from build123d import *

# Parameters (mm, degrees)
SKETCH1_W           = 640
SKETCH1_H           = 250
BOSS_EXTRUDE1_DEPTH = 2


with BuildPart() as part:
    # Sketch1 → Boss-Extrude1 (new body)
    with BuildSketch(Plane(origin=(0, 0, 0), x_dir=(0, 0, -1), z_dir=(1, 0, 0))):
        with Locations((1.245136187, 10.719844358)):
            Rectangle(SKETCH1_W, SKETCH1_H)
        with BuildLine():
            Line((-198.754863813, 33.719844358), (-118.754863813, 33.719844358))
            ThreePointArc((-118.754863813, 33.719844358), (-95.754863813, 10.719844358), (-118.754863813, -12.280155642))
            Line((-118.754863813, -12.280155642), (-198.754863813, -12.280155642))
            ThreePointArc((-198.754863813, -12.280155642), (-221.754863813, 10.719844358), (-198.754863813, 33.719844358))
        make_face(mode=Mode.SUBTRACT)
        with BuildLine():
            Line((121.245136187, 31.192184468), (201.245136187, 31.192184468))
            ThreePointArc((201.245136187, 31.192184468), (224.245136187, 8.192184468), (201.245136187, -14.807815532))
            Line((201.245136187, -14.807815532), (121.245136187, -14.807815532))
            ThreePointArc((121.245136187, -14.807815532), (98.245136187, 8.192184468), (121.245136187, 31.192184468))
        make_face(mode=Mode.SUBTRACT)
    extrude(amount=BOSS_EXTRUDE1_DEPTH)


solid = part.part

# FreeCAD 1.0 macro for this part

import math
import FreeCAD as App
import Part
import Sketcher
from FreeCAD import Vector


def add_polygon(sketch, points):
    """Adds a closed chain of lines whose ends are joined by coincident constraints."""
    first, n = sketch.GeometryCount, len(points)
    for a, b in zip(points, points[1:] + points[:1]):
        sketch.addGeometry(Part.LineSegment(App.Vector(*a, 0), App.Vector(*b, 0)), False)
    for i in range(n):
        sketch.addConstraint(Sketcher.Constraint("Coincident", first + i, 2, first + (i + 1) % n, 1))

doc = App.newDocument("Part")
body = doc.addObject("PartDesign::Body", "Body")

# Sketch on YZ plane
sketch1 = body.newObject("Sketcher::SketchObject", "Sketch")
sketch1.AttachmentSupport = (doc.getObject("YZ_Plane"), [""])
sketch1.MapMode = "FlatFace"
add_polygon(sketch1, [(135.719844, 318.754864), (-114.280156, 318.754864), (-114.280156, -321.245136), (135.719844, -321.245136)])  # lines 0-3
sketch1.addGeometry(Part.ArcOfCircle(Part.Circle(Vector(8.192184, -121.245136, 0), Vector(0, 0, 1), 23), math.radians(0), math.radians(180)), False)  # 4
sketch1.addGeometry(Part.LineSegment(Vector(31.192184, -121.245136, 0), Vector(31.192184, -201.245136, 0)), False)  # 5
sketch1.addGeometry(Part.ArcOfCircle(Part.Circle(Vector(8.192184, -201.245136, 0), Vector(0, 0, 1), 23), math.radians(180), math.radians(360)), False)  # 6
sketch1.addGeometry(Part.LineSegment(Vector(-14.807816, -201.245136, 0), Vector(-14.807816, -121.245136, 0)), False)  # 7
sketch1.addGeometry(Part.ArcOfCircle(Part.Circle(Vector(10.719844, 198.754864, 0), Vector(0, 0, 1), 23), math.radians(0), math.radians(180)), False)  # 8
sketch1.addGeometry(Part.LineSegment(Vector(33.719844, 198.754864, 0), Vector(33.719844, 118.754864, 0)), False)  # 9
sketch1.addGeometry(Part.ArcOfCircle(Part.Circle(Vector(10.719844, 118.754864, 0), Vector(0, 0, 1), 23), math.radians(180), math.radians(360)), False)  # 10
sketch1.addGeometry(Part.LineSegment(Vector(-12.280156, 118.754864, 0), Vector(-12.280156, 198.754864, 0)), False)  # 11
sketch1.addConstraint([
    Sketcher.Constraint("Tangent", 4, 1, 5, 1),
    Sketcher.Constraint("Tangent", 5, 2, 6, 2),
    Sketcher.Constraint("Tangent", 6, 1, 7, 1),
    Sketcher.Constraint("Tangent", 7, 2, 4, 2),
    Sketcher.Constraint("Tangent", 8, 1, 9, 1),
    Sketcher.Constraint("Tangent", 9, 2, 10, 2),
    Sketcher.Constraint("Tangent", 10, 1, 11, 1),
    Sketcher.Constraint("Tangent", 11, 2, 8, 2),
    Sketcher.Constraint("Horizontal", 0),
    Sketcher.Constraint("Vertical", 1),
    Sketcher.Constraint("Horizontal", 2),
    Sketcher.Constraint("Vertical", 3),
    Sketcher.Constraint("Vertical", 5),
    Sketcher.Constraint("Vertical", 7),
    Sketcher.Constraint("Vertical", 9),
    Sketcher.Constraint("Vertical", 11),
    Sketcher.Constraint("Equal", 6, 8),
    Sketcher.Constraint("Equal", 7, 9),
    Sketcher.Constraint("Radius", 4, 23.0),
    Sketcher.Constraint("DistanceX", 0, 2, 0, 1, 250.0),
    Sketcher.Constraint("DistanceY", 1, 2, 1, 1, 640.0),
    Sketcher.Constraint("DistanceY", 5, 2, 5, 1, 80.0),
    Sketcher.Constraint("DistanceY", 4, 3, 8, 3, 320.0),
    Sketcher.Constraint("DistanceX", 0, 2, 8, 3, 125.0),
    Sketcher.Constraint("DistanceY", 8, 3, 0, 2, 120.0),
    Sketcher.Constraint("DistanceX", 4, 3, 8, 3, 2.52766),
    Sketcher.Constraint("DistanceX", -1, 1, 4, 3, 8.192184),
    Sketcher.Constraint("DistanceY", 4, 3, -1, 1, 121.245136),
])
pad1 = body.newObject("PartDesign::Pad", "Pad")
pad1.Profile = sketch1
pad1.Length = 2

doc.recompute()
